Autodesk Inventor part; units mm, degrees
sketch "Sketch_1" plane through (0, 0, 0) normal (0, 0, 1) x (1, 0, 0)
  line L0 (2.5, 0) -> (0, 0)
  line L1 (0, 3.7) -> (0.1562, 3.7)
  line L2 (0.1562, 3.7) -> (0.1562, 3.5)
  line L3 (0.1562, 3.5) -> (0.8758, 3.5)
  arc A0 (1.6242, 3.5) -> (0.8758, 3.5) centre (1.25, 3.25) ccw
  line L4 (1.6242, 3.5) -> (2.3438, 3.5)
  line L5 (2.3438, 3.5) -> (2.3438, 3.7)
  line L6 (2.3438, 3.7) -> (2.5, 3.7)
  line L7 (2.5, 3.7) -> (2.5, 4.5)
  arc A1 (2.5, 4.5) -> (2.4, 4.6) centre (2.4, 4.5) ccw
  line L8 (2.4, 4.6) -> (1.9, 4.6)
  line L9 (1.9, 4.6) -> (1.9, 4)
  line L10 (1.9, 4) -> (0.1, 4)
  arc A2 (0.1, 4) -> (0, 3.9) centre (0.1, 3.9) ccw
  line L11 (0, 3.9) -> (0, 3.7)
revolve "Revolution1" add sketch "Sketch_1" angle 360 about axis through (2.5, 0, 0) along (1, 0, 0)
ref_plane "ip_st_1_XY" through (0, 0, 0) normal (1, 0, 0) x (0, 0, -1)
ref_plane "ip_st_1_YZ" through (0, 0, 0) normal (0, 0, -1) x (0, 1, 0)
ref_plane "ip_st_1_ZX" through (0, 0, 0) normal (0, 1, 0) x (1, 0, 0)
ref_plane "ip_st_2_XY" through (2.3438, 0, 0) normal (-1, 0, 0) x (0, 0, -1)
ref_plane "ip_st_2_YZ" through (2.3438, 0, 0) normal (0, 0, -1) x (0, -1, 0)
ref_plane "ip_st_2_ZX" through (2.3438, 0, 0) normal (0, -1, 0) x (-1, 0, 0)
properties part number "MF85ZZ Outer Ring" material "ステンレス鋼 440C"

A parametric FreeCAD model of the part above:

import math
import FreeCAD as App
import Part
import Sketcher

V = App.Vector
Q = App.Units.Quantity

doc = App.newDocument("Part")
body = doc.addObject("PartDesign::Body", "Body")

# Sketch on XY plane
sketch1 = body.newObject("Sketcher::SketchObject", "Sketch")
sketch1.AttachmentSupport = (doc.getObject("XY_Plane"), [""])
sketch1.MapMode = "FlatFace"
sketch1.addGeometry([
    Part.LineSegment(V(0, 3.9, 0), V(0, 3.7, 0)),  # 0
    Part.LineSegment(V(0, 3.7, 0), V(0.16, 3.7, 0)),  # 1
    Part.LineSegment(V(0.16, 3.7, 0), V(0.16, 3.5, 0)),  # 2
    Part.LineSegment(V(0.16, 3.5, 0), V(0.88, 3.5, 0)),  # 3
    Part.ArcOfCircle(Part.Circle(V(1.25, 3.25, 0), V(0, 0, 1), 0.45), math.radians(34), math.radians(146)),  # 4
    Part.LineSegment(V(1.62, 3.5, 0), V(2.34, 3.5, 0)),  # 5
    Part.LineSegment(V(2.34, 3.5, 0), V(2.34, 3.7, 0)),  # 6
    Part.LineSegment(V(2.34, 3.7, 0), V(2.5, 3.7, 0)),  # 7
    Part.LineSegment(V(2.5, 3.7, 0), V(2.5, 4.5, 0)),  # 8
    Part.ArcOfCircle(Part.Circle(V(2.4, 4.5, 0), V(0, 0, 1), 0.1), math.radians(0), math.radians(90)),  # 9
    Part.LineSegment(V(2.4, 4.6, 0), V(1.9, 4.6, 0)),  # 10
    Part.LineSegment(V(1.9, 4.6, 0), V(1.9, 4, 0)),  # 11
    Part.LineSegment(V(1.9, 4, 0), V(0.1, 4, 0)),  # 12
    Part.ArcOfCircle(Part.Circle(V(0.1, 3.9, 0), V(0, 0, 1), 0.1), math.radians(90), math.radians(180)),  # 13
], False)
sketch1.addConstraint([
    Sketcher.Constraint("Coincident", 0, 2, 1, 1),
    Sketcher.Constraint("Coincident", 1, 2, 2, 1),
    Sketcher.Constraint("Coincident", 2, 2, 3, 1),
    Sketcher.Constraint("Coincident", 3, 2, 4, 2),
    Sketcher.Constraint("Coincident", 4, 1, 5, 1),
    Sketcher.Constraint("Coincident", 5, 2, 6, 1),
    Sketcher.Constraint("Coincident", 6, 2, 7, 1),
    Sketcher.Constraint("Coincident", 7, 2, 8, 1),
    Sketcher.Constraint("Tangent", 8, 2, 9, 1),
    Sketcher.Constraint("Tangent", 9, 2, 10, 1),
    Sketcher.Constraint("Coincident", 10, 2, 11, 1),
    Sketcher.Constraint("Coincident", 11, 2, 12, 1),
    Sketcher.Constraint("Tangent", 12, 2, 13, 1),
    Sketcher.Constraint("Tangent", 13, 2, 0, 1),
    Sketcher.Constraint("Vertical", 0),
    Sketcher.Constraint("Horizontal", 1),
    Sketcher.Constraint("Vertical", 2),
    Sketcher.Constraint("Horizontal", 3),
    Sketcher.Constraint("Horizontal", 5),
    Sketcher.Constraint("Vertical", 6),
    Sketcher.Constraint("Horizontal", 7),
    Sketcher.Constraint("Vertical", 8),
    Sketcher.Constraint("Horizontal", 10),
    Sketcher.Constraint("Vertical", 11),
    Sketcher.Constraint("Horizontal", 12),
    Sketcher.Constraint("Equal", 9, 13),
    Sketcher.Constraint("PointOnObject", 0, 2, -2),
    Sketcher.Constraint("Horizontal", 3, 2, 4, 1),
    Sketcher.Constraint("Horizontal", 1, 2, 6, 2),
    Sketcher.Constraint("Equal", 3, 5),
    Sketcher.Constraint("Equal", 1, 7),
    Sketcher.Constraint("Equal", 0, 2),
    Sketcher.Constraint("Radius", 9, Q("0.1 mm")),
    Sketcher.Constraint("Radius", 4, Q("0.45 mm")),
    Sketcher.Constraint("DistanceX", 10, 2, 10, 1, Q("0.5 mm")),
    Sketcher.Constraint("DistanceX", 12, 2, 12, 1, Q("1.8 mm")),
    Sketcher.Constraint("DistanceY", 0, 2, 0, 1, Q("0.2 mm")),
    Sketcher.Constraint("DistanceY", 8, 1, 8, 2, Q("0.8 mm")),
    Sketcher.Constraint("DistanceY", -1, 1, 11, 2, Q("4 mm")),
    Sketcher.Constraint("DistanceY", -1, 1, 4, 3, Q("3.25 mm")),
    Sketcher.Constraint("DistanceX", 1, 1, 1, 2, Q("0.1562 mm")),
])
revolution = body.newObject("PartDesign::Revolution", "Revolution")
revolution.Profile = sketch1
revolution.ReferenceAxis = (sketch1, ["H_Axis"])
revolution.Angle = 360

doc.recompute()
